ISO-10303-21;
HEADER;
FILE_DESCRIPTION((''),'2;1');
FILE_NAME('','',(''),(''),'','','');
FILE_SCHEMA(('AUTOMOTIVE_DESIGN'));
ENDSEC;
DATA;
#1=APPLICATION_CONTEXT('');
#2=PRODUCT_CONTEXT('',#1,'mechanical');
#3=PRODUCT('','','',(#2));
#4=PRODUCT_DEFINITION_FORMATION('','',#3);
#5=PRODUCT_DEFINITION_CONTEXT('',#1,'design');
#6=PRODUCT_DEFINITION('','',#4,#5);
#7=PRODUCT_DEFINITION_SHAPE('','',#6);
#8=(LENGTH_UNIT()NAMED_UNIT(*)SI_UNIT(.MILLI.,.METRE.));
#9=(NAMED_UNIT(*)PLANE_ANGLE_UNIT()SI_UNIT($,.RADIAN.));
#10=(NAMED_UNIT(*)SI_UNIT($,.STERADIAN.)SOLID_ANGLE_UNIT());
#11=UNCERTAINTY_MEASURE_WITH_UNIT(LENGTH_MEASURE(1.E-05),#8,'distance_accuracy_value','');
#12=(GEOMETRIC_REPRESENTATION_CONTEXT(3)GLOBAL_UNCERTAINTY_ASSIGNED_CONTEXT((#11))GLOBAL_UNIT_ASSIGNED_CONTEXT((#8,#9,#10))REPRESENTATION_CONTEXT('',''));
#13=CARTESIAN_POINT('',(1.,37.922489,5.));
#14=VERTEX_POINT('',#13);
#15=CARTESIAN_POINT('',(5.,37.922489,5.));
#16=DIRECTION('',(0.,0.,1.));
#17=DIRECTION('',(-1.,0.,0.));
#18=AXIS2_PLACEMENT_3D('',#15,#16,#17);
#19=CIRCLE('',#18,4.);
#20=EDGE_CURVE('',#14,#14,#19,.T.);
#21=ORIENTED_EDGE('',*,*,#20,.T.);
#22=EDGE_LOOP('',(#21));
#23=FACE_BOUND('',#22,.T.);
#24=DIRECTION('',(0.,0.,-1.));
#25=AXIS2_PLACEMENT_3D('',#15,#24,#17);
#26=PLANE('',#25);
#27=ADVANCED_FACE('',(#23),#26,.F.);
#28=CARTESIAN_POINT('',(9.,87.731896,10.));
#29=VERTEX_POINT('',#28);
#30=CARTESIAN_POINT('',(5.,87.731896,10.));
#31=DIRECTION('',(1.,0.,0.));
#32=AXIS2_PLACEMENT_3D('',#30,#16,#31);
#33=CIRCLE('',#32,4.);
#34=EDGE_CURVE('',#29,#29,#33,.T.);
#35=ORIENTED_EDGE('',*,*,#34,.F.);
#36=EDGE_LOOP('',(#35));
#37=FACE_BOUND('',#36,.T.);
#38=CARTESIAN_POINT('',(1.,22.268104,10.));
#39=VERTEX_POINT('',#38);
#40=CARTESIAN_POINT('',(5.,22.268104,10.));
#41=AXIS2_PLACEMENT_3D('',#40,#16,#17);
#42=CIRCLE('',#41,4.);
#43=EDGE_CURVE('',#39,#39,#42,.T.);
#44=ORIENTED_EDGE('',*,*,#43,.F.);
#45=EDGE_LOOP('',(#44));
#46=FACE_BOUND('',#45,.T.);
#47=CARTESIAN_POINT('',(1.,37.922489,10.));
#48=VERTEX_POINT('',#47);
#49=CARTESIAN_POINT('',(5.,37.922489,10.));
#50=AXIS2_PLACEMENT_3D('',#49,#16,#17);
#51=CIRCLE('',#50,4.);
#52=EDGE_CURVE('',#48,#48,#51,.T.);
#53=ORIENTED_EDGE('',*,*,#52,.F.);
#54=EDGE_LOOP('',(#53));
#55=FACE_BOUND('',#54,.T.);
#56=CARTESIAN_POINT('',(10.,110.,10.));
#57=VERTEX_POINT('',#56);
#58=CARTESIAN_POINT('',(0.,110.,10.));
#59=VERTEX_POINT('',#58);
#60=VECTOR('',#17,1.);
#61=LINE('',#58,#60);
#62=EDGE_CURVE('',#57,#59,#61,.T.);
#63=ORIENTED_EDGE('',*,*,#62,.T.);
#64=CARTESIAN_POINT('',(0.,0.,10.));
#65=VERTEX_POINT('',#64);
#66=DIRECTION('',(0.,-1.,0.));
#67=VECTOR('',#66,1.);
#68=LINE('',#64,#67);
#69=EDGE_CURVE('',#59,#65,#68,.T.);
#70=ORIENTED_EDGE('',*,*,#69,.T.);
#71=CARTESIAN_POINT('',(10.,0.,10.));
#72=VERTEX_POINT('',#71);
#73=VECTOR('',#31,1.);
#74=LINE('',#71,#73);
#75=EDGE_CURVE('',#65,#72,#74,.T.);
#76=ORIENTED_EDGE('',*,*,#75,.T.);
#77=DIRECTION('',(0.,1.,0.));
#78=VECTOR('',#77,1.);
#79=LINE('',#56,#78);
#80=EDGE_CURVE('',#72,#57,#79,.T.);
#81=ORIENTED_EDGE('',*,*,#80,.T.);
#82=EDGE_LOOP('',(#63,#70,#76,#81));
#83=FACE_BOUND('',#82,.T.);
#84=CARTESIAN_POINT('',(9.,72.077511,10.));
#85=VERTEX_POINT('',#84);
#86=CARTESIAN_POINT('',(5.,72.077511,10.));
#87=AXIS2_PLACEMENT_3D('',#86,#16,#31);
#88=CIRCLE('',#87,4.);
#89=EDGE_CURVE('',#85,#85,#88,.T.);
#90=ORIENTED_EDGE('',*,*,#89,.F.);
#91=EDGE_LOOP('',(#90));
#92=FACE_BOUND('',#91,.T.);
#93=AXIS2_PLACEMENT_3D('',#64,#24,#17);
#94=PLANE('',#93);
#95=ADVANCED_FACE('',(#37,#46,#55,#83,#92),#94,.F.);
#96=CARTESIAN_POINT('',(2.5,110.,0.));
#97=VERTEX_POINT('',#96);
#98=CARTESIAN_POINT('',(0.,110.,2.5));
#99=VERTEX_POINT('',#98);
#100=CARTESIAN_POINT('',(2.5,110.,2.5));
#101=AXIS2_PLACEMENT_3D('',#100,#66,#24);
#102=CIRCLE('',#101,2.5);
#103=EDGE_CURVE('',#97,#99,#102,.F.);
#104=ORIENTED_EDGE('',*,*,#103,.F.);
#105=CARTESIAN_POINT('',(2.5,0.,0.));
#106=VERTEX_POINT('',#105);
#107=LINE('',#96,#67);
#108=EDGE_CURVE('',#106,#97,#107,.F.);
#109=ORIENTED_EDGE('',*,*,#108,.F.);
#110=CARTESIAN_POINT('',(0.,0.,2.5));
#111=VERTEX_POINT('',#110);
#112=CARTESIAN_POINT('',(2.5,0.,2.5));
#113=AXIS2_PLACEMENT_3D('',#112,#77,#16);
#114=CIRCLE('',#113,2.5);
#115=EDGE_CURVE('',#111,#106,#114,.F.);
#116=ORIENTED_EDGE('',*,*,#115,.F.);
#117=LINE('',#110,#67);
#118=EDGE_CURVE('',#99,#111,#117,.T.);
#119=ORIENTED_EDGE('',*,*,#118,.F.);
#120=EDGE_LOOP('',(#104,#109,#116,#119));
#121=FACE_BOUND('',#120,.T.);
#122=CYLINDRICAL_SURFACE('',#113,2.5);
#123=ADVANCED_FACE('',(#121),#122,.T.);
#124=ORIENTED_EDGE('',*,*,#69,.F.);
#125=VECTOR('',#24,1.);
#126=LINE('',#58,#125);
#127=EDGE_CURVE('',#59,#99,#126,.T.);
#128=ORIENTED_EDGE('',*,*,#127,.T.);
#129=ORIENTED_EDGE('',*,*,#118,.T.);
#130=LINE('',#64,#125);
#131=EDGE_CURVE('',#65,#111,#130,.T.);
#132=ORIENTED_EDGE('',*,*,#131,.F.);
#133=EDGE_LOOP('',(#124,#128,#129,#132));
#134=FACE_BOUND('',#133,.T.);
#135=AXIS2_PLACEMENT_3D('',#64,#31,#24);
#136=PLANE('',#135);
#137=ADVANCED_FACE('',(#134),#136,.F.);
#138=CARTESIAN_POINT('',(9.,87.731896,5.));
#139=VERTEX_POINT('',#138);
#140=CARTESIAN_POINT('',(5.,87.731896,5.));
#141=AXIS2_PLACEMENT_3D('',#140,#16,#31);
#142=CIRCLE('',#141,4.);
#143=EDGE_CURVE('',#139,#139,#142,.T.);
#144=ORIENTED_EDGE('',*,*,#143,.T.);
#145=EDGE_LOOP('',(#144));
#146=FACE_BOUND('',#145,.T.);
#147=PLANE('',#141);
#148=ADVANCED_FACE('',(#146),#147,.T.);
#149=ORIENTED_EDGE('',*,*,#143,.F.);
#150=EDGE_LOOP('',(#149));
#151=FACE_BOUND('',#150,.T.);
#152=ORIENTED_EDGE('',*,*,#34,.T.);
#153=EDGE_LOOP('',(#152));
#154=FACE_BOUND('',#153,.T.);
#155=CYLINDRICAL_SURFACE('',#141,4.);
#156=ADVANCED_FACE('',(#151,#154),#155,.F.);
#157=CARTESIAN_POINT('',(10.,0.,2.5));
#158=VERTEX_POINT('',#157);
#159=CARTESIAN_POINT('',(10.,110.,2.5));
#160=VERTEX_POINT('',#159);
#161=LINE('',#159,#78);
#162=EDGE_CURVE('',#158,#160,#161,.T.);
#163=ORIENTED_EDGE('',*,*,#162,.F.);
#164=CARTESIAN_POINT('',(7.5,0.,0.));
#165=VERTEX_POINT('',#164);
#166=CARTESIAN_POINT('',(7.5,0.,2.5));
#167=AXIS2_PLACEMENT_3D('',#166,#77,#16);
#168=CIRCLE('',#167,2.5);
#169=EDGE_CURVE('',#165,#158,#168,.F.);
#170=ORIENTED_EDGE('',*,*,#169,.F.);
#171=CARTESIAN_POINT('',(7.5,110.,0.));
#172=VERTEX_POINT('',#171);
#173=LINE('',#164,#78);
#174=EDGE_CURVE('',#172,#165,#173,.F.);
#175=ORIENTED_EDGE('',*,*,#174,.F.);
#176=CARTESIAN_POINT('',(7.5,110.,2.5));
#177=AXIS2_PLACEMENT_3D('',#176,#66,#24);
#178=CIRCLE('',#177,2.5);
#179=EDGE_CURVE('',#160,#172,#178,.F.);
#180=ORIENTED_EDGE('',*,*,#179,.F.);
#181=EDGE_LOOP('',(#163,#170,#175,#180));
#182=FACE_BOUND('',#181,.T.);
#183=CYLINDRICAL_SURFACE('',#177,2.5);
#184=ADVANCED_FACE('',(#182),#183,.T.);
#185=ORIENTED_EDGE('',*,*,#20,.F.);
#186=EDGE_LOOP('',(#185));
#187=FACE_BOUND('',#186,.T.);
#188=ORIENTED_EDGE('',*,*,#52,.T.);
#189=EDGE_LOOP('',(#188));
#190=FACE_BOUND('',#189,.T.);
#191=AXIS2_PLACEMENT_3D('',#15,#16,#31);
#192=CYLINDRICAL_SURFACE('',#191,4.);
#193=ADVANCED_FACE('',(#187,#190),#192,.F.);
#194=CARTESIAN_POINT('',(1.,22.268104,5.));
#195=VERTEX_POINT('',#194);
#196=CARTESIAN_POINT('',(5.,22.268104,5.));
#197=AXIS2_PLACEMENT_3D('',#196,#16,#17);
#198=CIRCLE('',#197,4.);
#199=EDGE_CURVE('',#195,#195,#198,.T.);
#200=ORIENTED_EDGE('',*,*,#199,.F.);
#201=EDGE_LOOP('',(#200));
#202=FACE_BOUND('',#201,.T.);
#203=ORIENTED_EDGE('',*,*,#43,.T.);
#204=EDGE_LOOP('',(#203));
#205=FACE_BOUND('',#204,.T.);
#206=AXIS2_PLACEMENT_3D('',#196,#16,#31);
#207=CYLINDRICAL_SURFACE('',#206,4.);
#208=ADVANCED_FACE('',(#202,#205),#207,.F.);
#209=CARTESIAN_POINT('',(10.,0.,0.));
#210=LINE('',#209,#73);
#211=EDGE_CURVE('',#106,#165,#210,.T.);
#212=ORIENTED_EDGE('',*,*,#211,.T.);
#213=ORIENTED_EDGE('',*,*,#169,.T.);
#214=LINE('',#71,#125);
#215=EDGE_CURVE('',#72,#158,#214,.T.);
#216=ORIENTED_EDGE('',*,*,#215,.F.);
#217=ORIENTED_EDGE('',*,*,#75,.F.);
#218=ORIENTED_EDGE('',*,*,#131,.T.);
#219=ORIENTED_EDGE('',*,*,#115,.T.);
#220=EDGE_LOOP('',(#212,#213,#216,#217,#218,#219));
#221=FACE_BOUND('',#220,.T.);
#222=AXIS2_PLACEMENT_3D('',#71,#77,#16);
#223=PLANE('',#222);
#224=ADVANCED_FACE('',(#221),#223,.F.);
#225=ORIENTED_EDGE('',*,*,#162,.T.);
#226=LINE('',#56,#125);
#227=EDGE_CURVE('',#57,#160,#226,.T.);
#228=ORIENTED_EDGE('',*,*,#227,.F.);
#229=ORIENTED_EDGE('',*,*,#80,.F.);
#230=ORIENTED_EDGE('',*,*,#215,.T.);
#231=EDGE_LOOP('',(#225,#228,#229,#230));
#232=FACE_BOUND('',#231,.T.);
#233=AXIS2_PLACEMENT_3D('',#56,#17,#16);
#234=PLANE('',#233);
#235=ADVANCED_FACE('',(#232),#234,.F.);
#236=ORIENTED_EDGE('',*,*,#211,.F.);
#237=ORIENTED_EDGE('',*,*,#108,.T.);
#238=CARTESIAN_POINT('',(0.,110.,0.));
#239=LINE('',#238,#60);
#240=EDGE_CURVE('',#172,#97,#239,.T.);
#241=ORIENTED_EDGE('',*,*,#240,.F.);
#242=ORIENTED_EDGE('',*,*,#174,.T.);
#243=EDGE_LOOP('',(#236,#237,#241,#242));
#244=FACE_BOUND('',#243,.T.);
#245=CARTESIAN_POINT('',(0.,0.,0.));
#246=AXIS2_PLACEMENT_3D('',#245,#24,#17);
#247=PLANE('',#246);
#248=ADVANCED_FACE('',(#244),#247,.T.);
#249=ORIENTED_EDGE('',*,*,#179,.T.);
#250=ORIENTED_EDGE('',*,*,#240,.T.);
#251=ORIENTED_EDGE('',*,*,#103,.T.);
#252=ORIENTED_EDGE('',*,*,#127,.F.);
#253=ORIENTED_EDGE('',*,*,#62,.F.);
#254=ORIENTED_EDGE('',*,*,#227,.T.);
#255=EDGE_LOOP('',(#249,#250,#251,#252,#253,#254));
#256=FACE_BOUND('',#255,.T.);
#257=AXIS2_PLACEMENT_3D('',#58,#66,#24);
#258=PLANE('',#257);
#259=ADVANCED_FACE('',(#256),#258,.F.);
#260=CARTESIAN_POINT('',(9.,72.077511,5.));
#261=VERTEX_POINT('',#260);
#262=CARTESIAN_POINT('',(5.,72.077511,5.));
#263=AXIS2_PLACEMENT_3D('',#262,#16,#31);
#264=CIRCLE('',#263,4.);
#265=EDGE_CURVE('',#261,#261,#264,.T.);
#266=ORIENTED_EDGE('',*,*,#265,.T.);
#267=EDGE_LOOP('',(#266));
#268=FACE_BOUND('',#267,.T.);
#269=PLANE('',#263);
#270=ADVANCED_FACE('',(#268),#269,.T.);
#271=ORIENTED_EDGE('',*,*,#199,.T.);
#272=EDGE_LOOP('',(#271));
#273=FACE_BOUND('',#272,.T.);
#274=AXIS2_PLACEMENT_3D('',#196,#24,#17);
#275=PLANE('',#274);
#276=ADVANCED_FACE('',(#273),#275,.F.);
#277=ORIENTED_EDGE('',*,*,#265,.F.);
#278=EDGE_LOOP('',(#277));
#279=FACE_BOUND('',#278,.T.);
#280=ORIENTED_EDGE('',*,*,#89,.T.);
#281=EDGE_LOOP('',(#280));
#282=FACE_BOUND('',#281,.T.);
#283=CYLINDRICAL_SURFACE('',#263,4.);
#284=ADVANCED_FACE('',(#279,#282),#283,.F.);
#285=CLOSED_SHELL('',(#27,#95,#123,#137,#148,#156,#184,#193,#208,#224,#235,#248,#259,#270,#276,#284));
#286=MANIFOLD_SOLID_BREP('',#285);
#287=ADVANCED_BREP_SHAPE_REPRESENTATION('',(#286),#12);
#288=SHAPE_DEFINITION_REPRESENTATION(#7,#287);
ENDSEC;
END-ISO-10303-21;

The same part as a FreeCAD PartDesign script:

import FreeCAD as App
import Part
import Sketcher

V = App.Vector
Q = App.Units.Quantity


def edges_at(feature, points):
    """Names of the edges that pass closest to the given points."""
    edges = feature.Shape.Edges
    near = lambda p: min(range(len(edges)), key=lambda i: edges[i].distToShape(Part.Vertex(*p))[0])
    return sorted({f"Edge{near(p) + 1}" for p in points})


def add_polygon(sketch, points):
    """Adds a closed chain of lines whose ends are joined by coincident constraints."""
    first, n = sketch.GeometryCount, len(points)
    for a, b in zip(points, points[1:] + points[:1]):
        sketch.addGeometry(Part.LineSegment(App.Vector(*a, 0), App.Vector(*b, 0)), False)
    for i in range(n):
        sketch.addConstraint(Sketcher.Constraint("Coincident", first + i, 2, first + (i + 1) % n, 1))

doc = App.newDocument("Part")
body = doc.addObject("PartDesign::Body", "Body")

sketch1 = body.newObject("Sketcher::SketchObject", "Sketch")
sketch1.AttachmentSupport = (doc.getObject("XY_Plane"), [""])
sketch1.MapMode = "FlatFace"
add_polygon(sketch1, [(0, 110), (0, 0), (10, 0), (10, 110)])
sketch1.addConstraint(Sketcher.Constraint("Vertical", 0))
sketch1.addConstraint(Sketcher.Constraint("Horizontal", 1))
sketch1.addConstraint(Sketcher.Constraint("Vertical", 2))
sketch1.addConstraint(Sketcher.Constraint("Horizontal", 3))
sketch1.addConstraint(Sketcher.Constraint("Coincident", 0, 2, -1, 1))
sketch1.addConstraint(Sketcher.Constraint("DistanceX", 1, 1, 1, 2, Q("10 mm")))
sketch1.addConstraint(Sketcher.Constraint("DistanceY", 0, 2, 0, 1, Q("110 mm")))
pad1 = body.newObject("PartDesign::Pad", "Pad")
pad1.Profile = sketch1
pad1.Length = 10

sketch2 = body.newObject("Sketcher::SketchObject", "Sketch001")
sketch2.AttachmentSupport = (doc.getObject("XY_Plane"), [""])
sketch2.MapMode = "FlatFace"
sketch2.AttachmentOffset = App.Placement(V(0, 0, 10), App.Rotation())
sketch2.addGeometry(Part.Circle(V(5, 87.7, 0), V(0, 0, 1), 4), False)
sketch2.addGeometry(Part.Circle(V(5, 72.1, 0), V(0, 0, 1), 4), False)
sketch2.addGeometry(Part.Circle(V(5, 37.9, 0), V(0, 0, 1), 4), False)
sketch2.addGeometry(Part.Circle(V(5, 22.3, 0), V(0, 0, 1), 4), False)
sketch2.addConstraint(Sketcher.Constraint("Equal", 0, 1))
sketch2.addConstraint(Sketcher.Constraint("Equal", 1, 2))
sketch2.addConstraint(Sketcher.Constraint("Equal", 2, 3))
sketch2.addConstraint(Sketcher.Constraint("Vertical", 0, 3, 1, 3))
sketch2.addConstraint(Sketcher.Constraint("Vertical", 1, 3, 2, 3))
sketch2.addConstraint(Sketcher.Constraint("Vertical", 2, 3, 3, 3))
sketch2.addConstraint(Sketcher.Constraint("Diameter", 0, Q("8 mm")))
sketch2.addConstraint(Sketcher.Constraint("DistanceX", -1, 1, 0, 3, Q("5 mm")))
sketch2.addConstraint(Sketcher.Constraint("DistanceY", -1, 1, 1, 3, Q("72.077511 mm")))
sketch2.addConstraint(Sketcher.Constraint("DistanceY", -1, 1, 2, 3, Q("37.922489 mm")))
sketch2.addConstraint(Sketcher.Constraint("DistanceY", 3, 3, 0, 3, Q("65.463791 mm")))
sketch2.addConstraint(Sketcher.Constraint("DistanceY", -1, 1, 0, 3, Q("87.731896 mm")))
pocket1 = body.newObject("PartDesign::Pocket", "Pocket")
pocket1.Profile = sketch2
pocket1.Length = 5
doc.recompute()

fillet = body.newObject("PartDesign::Fillet", "Fillet")
fillet.Base = (pocket1, edges_at(pocket1, [(0, 55, 0), (10, 55, 0)]))
fillet.Radius = 2.5

doc.recompute()
